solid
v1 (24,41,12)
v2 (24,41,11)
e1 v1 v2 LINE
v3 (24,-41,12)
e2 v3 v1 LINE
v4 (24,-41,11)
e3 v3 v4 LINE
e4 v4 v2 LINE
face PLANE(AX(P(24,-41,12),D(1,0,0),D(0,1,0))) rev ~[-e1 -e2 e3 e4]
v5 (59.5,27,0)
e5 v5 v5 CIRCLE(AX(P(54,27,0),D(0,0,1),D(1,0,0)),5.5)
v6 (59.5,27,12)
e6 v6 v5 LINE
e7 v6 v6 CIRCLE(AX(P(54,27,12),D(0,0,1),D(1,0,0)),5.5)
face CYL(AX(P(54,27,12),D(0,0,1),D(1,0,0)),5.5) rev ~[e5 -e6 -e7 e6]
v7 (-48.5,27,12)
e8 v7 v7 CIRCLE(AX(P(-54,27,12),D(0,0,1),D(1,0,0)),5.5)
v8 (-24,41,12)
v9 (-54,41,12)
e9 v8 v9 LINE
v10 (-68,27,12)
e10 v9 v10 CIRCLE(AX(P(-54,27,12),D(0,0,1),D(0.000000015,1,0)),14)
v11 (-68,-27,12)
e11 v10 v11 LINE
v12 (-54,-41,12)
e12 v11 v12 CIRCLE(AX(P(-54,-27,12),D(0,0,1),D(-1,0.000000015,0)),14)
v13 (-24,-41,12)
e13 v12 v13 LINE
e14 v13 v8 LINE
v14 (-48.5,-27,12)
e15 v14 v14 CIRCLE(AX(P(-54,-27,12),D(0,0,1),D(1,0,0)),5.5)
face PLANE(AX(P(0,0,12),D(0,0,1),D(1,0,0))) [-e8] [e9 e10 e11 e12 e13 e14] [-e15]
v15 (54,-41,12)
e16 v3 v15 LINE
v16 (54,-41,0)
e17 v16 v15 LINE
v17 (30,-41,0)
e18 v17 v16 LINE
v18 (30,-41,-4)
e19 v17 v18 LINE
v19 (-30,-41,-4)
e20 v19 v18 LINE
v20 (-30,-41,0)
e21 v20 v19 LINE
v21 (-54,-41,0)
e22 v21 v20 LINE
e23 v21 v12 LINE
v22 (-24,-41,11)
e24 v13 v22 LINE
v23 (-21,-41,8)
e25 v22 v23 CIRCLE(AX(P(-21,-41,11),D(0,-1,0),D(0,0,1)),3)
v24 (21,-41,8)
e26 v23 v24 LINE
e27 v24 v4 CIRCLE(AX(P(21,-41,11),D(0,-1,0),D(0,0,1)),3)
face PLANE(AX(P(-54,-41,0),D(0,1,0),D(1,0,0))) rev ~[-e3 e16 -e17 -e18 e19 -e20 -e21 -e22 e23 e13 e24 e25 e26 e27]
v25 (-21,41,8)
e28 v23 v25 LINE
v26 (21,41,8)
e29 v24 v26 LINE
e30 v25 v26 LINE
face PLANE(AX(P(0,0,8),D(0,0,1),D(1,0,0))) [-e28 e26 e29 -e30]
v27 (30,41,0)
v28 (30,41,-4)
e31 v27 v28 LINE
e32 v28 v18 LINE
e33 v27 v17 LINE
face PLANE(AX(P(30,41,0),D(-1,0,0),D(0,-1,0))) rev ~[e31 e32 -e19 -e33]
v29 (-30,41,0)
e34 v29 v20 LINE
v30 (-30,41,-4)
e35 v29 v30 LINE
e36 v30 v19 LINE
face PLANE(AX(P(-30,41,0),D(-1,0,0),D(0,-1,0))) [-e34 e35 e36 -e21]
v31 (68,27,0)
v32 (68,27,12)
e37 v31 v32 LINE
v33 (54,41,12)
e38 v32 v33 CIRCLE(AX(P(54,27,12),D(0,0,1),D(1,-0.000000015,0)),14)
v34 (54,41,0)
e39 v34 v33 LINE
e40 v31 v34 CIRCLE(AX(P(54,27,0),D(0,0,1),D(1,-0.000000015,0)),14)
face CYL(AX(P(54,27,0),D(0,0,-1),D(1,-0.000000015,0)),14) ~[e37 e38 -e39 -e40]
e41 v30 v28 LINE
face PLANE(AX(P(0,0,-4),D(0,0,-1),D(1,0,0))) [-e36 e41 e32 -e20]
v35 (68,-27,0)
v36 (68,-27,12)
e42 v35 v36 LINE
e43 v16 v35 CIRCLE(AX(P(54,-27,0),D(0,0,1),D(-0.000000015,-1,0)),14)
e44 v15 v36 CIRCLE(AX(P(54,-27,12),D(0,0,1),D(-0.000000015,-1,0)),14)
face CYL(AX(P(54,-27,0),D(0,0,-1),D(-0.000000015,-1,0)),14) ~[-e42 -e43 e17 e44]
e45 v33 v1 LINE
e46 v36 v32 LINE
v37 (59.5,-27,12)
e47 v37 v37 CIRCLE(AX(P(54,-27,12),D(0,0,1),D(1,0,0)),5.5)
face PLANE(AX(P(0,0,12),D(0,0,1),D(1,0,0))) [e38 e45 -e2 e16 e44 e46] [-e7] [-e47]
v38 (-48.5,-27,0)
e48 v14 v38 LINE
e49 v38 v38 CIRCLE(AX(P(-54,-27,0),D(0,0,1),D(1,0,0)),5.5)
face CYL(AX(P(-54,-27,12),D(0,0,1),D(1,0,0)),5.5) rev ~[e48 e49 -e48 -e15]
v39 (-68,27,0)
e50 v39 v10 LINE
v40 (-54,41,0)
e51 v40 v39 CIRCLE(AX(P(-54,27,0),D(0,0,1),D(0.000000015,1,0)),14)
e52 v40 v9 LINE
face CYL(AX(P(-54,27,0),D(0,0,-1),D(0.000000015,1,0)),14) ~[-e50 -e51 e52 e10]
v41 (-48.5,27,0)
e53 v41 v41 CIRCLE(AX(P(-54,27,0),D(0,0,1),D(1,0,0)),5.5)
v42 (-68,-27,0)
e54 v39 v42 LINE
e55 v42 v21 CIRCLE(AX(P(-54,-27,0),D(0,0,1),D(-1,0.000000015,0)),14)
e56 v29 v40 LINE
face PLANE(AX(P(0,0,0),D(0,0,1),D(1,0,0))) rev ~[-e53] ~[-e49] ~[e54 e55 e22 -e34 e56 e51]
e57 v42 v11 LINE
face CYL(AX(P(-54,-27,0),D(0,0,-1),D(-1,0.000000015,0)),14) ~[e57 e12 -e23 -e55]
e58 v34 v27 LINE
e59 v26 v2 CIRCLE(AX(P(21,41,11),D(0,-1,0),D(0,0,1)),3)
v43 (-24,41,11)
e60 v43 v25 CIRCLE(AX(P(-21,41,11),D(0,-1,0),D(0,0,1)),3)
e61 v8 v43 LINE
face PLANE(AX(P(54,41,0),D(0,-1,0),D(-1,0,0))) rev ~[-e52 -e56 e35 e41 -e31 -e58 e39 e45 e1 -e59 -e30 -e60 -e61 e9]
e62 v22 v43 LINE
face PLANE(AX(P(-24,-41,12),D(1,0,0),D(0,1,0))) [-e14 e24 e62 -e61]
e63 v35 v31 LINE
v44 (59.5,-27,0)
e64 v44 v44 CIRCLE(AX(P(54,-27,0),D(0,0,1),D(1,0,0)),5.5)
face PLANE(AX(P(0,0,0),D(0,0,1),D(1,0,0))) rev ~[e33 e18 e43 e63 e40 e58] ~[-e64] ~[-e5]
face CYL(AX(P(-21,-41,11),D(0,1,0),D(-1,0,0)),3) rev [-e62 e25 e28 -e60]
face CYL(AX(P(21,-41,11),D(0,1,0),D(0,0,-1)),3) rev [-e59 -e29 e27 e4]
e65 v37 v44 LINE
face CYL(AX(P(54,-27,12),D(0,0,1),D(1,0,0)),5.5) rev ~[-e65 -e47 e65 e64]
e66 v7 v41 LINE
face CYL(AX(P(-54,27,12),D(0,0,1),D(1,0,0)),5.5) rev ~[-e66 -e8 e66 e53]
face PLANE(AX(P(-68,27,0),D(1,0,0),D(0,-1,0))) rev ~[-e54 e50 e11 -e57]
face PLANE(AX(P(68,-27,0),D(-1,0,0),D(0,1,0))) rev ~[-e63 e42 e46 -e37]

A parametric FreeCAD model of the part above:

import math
import FreeCAD as App
import Part
import Sketcher
Q = App.Units.Quantity


def edges_at(feature, points):
    """Names of the edges that pass closest to the given points."""
    edges = feature.Shape.Edges
    near = lambda p: min(range(len(edges)), key=lambda i: edges[i].distToShape(Part.Vertex(*p))[0])
    return sorted({f"Edge{near(p) + 1}" for p in points})

doc = App.newDocument("Part")
body = doc.addObject("PartDesign::Body", "Body")

# Sketch on XY plane
sketch1 = doc.addObject("Sketcher::SketchObject", "Sketch")
body.addObject(sketch1)
sketch1.AttachmentSupport = (doc.XY_Plane, [""])
sketch1.MapMode = "FlatFace"
sketch1.addGeometry([
    Part.ArcOfCircle(Part.Circle(App.Vector(54, 27, 0), App.Vector(0, 0, 1), 14), math.radians(0), math.radians(90)),  # 0
    Part.LineSegment(App.Vector(54, 41, 0), App.Vector(-54, 41, 0)),  # 1
    Part.ArcOfCircle(Part.Circle(App.Vector(-54, 27, 0), App.Vector(0, 0, 1), 14), math.radians(90), math.radians(180)),  # 2
    Part.LineSegment(App.Vector(-68, 27, 0), App.Vector(-68, -27, 0)),  # 3
    Part.ArcOfCircle(Part.Circle(App.Vector(-54, -27, 0), App.Vector(0, 0, 1), 14), math.radians(180), math.radians(270)),  # 4
    Part.LineSegment(App.Vector(-54, -41, 0), App.Vector(54, -41, 0)),  # 5
    Part.ArcOfCircle(Part.Circle(App.Vector(54, -27, 0), App.Vector(0, 0, 1), 14), math.radians(-90), math.radians(0)),  # 6
    Part.LineSegment(App.Vector(68, -27, 0), App.Vector(68, 27, 0)),  # 7
], False)
sketch1.addConstraint([
    Sketcher.Constraint("Tangent", 0, 2, 1, 1),
    Sketcher.Constraint("Tangent", 1, 2, 2, 1),
    Sketcher.Constraint("Tangent", 2, 2, 3, 1),
    Sketcher.Constraint("Tangent", 3, 2, 4, 1),
    Sketcher.Constraint("Tangent", 4, 2, 5, 1),
    Sketcher.Constraint("Tangent", 5, 2, 6, 1),
    Sketcher.Constraint("Tangent", 6, 2, 7, 1),
    Sketcher.Constraint("Tangent", 7, 2, 0, 1),
    Sketcher.Constraint("Horizontal", 1),
    Sketcher.Constraint("Vertical", 3),
    Sketcher.Constraint("Horizontal", 5),
    Sketcher.Constraint("Vertical", 7),
    Sketcher.Constraint("Equal", 0, 2),
    Sketcher.Constraint("Equal", 2, 4),
    Sketcher.Constraint("Equal", 4, 6),
    Sketcher.Constraint("Symmetric", 0, 3, 4, 3, -1, 1),
    Sketcher.Constraint("Radius", 0, Q("14 mm")),
    Sketcher.Constraint("DistanceX", 1, 2, 1, 1, Q("108 mm")),
    Sketcher.Constraint("DistanceY", 3, 2, 3, 1, Q("54 mm")),
])
pad1 = doc.addObject("PartDesign::Pad", "Pad")
body.addObject(pad1)
pad1.Profile = sketch1
pad1.Length = 12

# Sketch on XY plane
sketch2 = doc.addObject("Sketcher::SketchObject", "Sketch001")
body.addObject(sketch2)
sketch2.AttachmentSupport = (doc.XY_Plane, [""])
sketch2.MapMode = "FlatFace"
sketch2.AttachmentOffset = App.Placement(App.Vector(0, 0, 12), App.Rotation())
sketch2.addGeometry([
    Part.LineSegment(App.Vector(-24, 41, 0), App.Vector(-24, -41, 0)),
    Part.LineSegment(App.Vector(-24, -41, 0), App.Vector(24, -41, 0)),
    Part.LineSegment(App.Vector(24, -41, 0), App.Vector(24, 41, 0)),
    Part.LineSegment(App.Vector(24, 41, 0), App.Vector(-24, 41, 0)),
], False)
sketch2.addConstraint([
    Sketcher.Constraint("Coincident", 0, 2, 1, 1),
    Sketcher.Constraint("Coincident", 1, 2, 2, 1),
    Sketcher.Constraint("Coincident", 2, 2, 3, 1),
    Sketcher.Constraint("Coincident", 3, 2, 0, 1),
    Sketcher.Constraint("Vertical", 0),
    Sketcher.Constraint("Horizontal", 1),
    Sketcher.Constraint("Vertical", 2),
    Sketcher.Constraint("Horizontal", 3),
    Sketcher.Constraint("Symmetric", 0, 2, 2, 2, -1, 1),
    Sketcher.Constraint("DistanceX", 1, 1, 1, 2, Q("48 mm")),
    Sketcher.Constraint("DistanceY", 0, 2, 0, 1, Q("82 mm")),
])
pocket1 = doc.addObject("PartDesign::Pocket", "Pocket")
body.addObject(pocket1)
pocket1.Profile = sketch2
pocket1.Length = 4
doc.recompute()

fillet = doc.addObject("PartDesign::Fillet", "Fillet")
body.addObject(fillet)
fillet.Base = (pocket1, edges_at(pocket1, [(-24, 0, 8), (24, 0, 8)]))
fillet.Radius = 3

# Sketch on XY plane
sketch3 = doc.addObject("Sketcher::SketchObject", "Sketch002")
body.addObject(sketch3)
sketch3.AttachmentSupport = (doc.XY_Plane, [""])
sketch3.MapMode = "FlatFace"
sketch3.addGeometry([
    Part.LineSegment(App.Vector(-30, -41, 0), App.Vector(-30, 41, 0)),
    Part.LineSegment(App.Vector(-30, 41, 0), App.Vector(30, 41, 0)),
    Part.LineSegment(App.Vector(30, 41, 0), App.Vector(30, -41, 0)),
    Part.LineSegment(App.Vector(30, -41, 0), App.Vector(-30, -41, 0)),
], False)
sketch3.addConstraint([
    Sketcher.Constraint("Coincident", 0, 2, 1, 1),
    Sketcher.Constraint("Coincident", 1, 2, 2, 1),
    Sketcher.Constraint("Coincident", 2, 2, 3, 1),
    Sketcher.Constraint("Coincident", 3, 2, 0, 1),
    Sketcher.Constraint("Vertical", 0),
    Sketcher.Constraint("Horizontal", 1),
    Sketcher.Constraint("Vertical", 2),
    Sketcher.Constraint("Horizontal", 3),
    Sketcher.Constraint("Symmetric", 0, 2, 2, 2, -1, 1),
    Sketcher.Constraint("DistanceX", 1, 1, 1, 2, Q("60 mm")),
    Sketcher.Constraint("DistanceY", 0, 1, 0, 2, Q("82 mm")),
])
pad2 = doc.addObject("PartDesign::Pad", "Pad001")
body.addObject(pad2)
pad2.Profile = sketch3
pad2.Length = 4
pad2.Reversed = True

# Sketch on XY plane
sketch4 = doc.addObject("Sketcher::SketchObject", "Sketch003")
body.addObject(sketch4)
sketch4.AttachmentSupport = (doc.XY_Plane, [""])
sketch4.MapMode = "FlatFace"
sketch4.AttachmentOffset = App.Placement(App.Vector(0, 0, 12), App.Rotation())
sketch4.addGeometry([
    Part.Circle(App.Vector(-54, 27, 0), App.Vector(0, 0, 1), 6),
    Part.Circle(App.Vector(-54, -27, 0), App.Vector(0, 0, 1), 6),
    Part.Circle(App.Vector(54, -27, 0), App.Vector(0, 0, 1), 6),
    Part.Circle(App.Vector(54, 27, 0), App.Vector(0, 0, 1), 6),
], False)
sketch4.addConstraint([
    Sketcher.Constraint("Equal", 0, 1),
    Sketcher.Constraint("Equal", 1, 2),
    Sketcher.Constraint("Equal", 2, 3),
    Sketcher.Constraint("Symmetric", 0, 3, 2, 3, -1, 1),
    Sketcher.Constraint("Symmetric", 1, 3, 3, 3, -1, 1),
    Sketcher.Constraint("Symmetric", 1, 3, 2, 3, -2),
    Sketcher.Constraint("Diameter", 0, Q("11 mm")),
    Sketcher.Constraint("DistanceX", 0, 3, -1, 1, Q("54 mm")),
    Sketcher.Constraint("DistanceY", -1, 1, 0, 3, Q("27 mm")),
])
pocket2 = doc.addObject("PartDesign::Pocket", "Pocket001")
body.addObject(pocket2)
pocket2.Profile = sketch4
pocket2.Type = "ThroughAll"

doc.recompute()
